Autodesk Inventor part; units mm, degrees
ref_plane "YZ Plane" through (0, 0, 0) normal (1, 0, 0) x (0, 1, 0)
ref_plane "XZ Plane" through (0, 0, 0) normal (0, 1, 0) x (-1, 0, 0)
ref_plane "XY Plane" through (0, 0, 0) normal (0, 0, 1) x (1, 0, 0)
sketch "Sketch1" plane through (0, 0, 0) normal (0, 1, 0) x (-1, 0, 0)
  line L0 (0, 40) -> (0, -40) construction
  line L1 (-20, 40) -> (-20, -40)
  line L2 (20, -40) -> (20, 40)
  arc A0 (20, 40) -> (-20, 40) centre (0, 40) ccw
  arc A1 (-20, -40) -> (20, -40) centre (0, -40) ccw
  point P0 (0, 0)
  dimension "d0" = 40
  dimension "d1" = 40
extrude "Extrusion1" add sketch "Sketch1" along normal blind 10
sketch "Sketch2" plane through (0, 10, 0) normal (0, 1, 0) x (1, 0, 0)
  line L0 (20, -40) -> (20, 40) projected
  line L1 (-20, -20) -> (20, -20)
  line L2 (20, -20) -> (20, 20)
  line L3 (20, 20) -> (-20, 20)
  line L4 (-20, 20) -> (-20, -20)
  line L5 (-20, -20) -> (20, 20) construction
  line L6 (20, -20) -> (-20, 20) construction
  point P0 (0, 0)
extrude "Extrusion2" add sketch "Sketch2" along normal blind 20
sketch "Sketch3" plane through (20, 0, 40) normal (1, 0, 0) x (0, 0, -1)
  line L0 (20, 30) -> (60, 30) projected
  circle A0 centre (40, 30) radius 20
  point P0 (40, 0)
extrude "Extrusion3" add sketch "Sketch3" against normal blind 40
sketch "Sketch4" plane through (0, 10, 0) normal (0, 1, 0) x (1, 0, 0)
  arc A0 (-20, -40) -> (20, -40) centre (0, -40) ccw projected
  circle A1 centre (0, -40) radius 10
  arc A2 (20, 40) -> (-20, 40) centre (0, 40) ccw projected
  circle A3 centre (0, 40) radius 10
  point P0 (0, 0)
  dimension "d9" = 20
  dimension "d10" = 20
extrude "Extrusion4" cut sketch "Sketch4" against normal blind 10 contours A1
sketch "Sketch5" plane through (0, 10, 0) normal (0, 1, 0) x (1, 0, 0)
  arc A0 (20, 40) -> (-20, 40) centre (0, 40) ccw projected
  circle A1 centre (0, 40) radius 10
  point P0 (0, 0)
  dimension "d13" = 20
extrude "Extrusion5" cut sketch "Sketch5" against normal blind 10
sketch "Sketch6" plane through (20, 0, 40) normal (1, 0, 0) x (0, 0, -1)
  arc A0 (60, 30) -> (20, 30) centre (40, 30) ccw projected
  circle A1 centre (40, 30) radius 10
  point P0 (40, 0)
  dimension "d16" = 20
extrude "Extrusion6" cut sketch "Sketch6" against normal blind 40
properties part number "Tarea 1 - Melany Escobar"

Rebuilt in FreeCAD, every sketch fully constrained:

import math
import FreeCAD as App
import Part
import Sketcher

V = App.Vector
Q = App.Units.Quantity

doc = App.newDocument("Part")
body = doc.addObject("PartDesign::Body", "Body")

# Sketch on XZ plane
sketch1 = body.newObject("Sketcher::SketchObject", "Sketch")
sketch1.AttachmentSupport = (doc.getObject("XZ_Plane"), [""])
sketch1.MapMode = "FlatFace"
sketch1.addGeometry([
    Part.ArcOfCircle(Part.Circle(V(0, 40, 0), V(0, 0, 1), 20), math.radians(0), math.radians(180)),
    Part.LineSegment(V(20, 40, 0), V(20, -40, 0)),
    Part.ArcOfCircle(Part.Circle(V(0, -40, 0), V(0, 0, 1), 20), math.radians(180), math.radians(360)),
    Part.LineSegment(V(-20, -40, 0), V(-20, 40, 0)),
], False)
sketch1.addConstraint([
    Sketcher.Constraint("Tangent", 0, 1, 1, 1),
    Sketcher.Constraint("Tangent", 1, 2, 2, 2),
    Sketcher.Constraint("Tangent", 2, 1, 3, 1),
    Sketcher.Constraint("Tangent", 3, 2, 0, 2),
    Sketcher.Constraint("Vertical", 1),
    Sketcher.Constraint("Vertical", 3),
    Sketcher.Constraint("Symmetric", 0, 3, 2, 3, -1, 1),
    Sketcher.Constraint("Radius", 0, Q("20 mm")),
    Sketcher.Constraint("DistanceY", -1, 1, 0, 3, Q("40 mm")),
])
pad1 = body.newObject("PartDesign::Pad", "Pad")
pad1.Profile = sketch1
pad1.Length = 10
pad1.Reversed = True

# Sketch on XZ plane
sketch2 = body.newObject("Sketcher::SketchObject", "Sketch001")
sketch2.AttachmentSupport = (doc.getObject("XZ_Plane"), [""])
sketch2.MapMode = "FlatFace"
sketch2.AttachmentOffset = App.Placement(V(0, 0, -10), App.Rotation())
sketch2.addGeometry([
    Part.LineSegment(V(-20, 20, 0), V(20, 20, 0)),
    Part.LineSegment(V(20, 20, 0), V(20, -20, 0)),
    Part.LineSegment(V(20, -20, 0), V(-20, -20, 0)),
    Part.LineSegment(V(-20, -20, 0), V(-20, 20, 0)),
], False)
sketch2.addConstraint([
    Sketcher.Constraint("Coincident", 0, 2, 1, 1),
    Sketcher.Constraint("Coincident", 1, 2, 2, 1),
    Sketcher.Constraint("Coincident", 2, 2, 3, 1),
    Sketcher.Constraint("Coincident", 3, 2, 0, 1),
    Sketcher.Constraint("Horizontal", 0),
    Sketcher.Constraint("Vertical", 1),
    Sketcher.Constraint("Horizontal", 2),
    Sketcher.Constraint("Vertical", 3),
    Sketcher.Constraint("Symmetric", 0, 2, 2, 2, -1, 1),
    Sketcher.Constraint("Equal", 2, 1),
    Sketcher.Constraint("DistanceX", 0, 1, 0, 2, Q("40 mm")),
])
pad2 = body.newObject("PartDesign::Pad", "Pad001")
pad2.Profile = sketch2
pad2.Length = 20
pad2.Reversed = True

# Sketch on YZ plane
sketch3 = body.newObject("Sketcher::SketchObject", "Sketch002")
sketch3.AttachmentSupport = (doc.getObject("YZ_Plane"), [""])
sketch3.MapMode = "FlatFace"
sketch3.AttachmentOffset = App.Placement(V(0, 0, 20), App.Rotation())
sketch3.addGeometry(Part.Circle(V(30, 0, 0), V(0, 0, 1), 20), False)
sketch3.addConstraint([
    Sketcher.Constraint("PointOnObject", 0, 3, -1),
    Sketcher.Constraint("Diameter", 0, Q("40 mm")),
    Sketcher.Constraint("DistanceX", -1, 1, 0, 3, Q("30 mm")),
])
pad3 = body.newObject("PartDesign::Pad", "Pad002")
pad3.Profile = sketch3
pad3.Length = 40
pad3.Reversed = True

# Sketch on XZ plane
sketch4 = body.newObject("Sketcher::SketchObject", "Sketch003")
sketch4.AttachmentSupport = (doc.getObject("XZ_Plane"), [""])
sketch4.MapMode = "FlatFace"
sketch4.AttachmentOffset = App.Placement(V(0, 0, -10), App.Rotation())
sketch4.addGeometry(Part.Circle(V(0, 40, 0), V(0, 0, 1), 10), False)
sketch4.addConstraint([
    Sketcher.Constraint("PointOnObject", 0, 3, -2),
    Sketcher.Constraint("Diameter", 0, Q("20 mm")),
    Sketcher.Constraint("DistanceY", -1, 1, 0, 3, Q("40 mm")),
])
pocket1 = body.newObject("PartDesign::Pocket", "Pocket")
pocket1.Profile = sketch4
pocket1.Length = 10
pocket1.Reversed = True

# Sketch on XZ plane
sketch5 = body.newObject("Sketcher::SketchObject", "Sketch004")
sketch5.AttachmentSupport = (doc.getObject("XZ_Plane"), [""])
sketch5.MapMode = "FlatFace"
sketch5.AttachmentOffset = App.Placement(V(0, 0, -10), App.Rotation())
sketch5.addGeometry(Part.Circle(V(0, -40, 0), V(0, 0, 1), 10), False)
sketch5.addConstraint([
    Sketcher.Constraint("PointOnObject", 0, 3, -2),
    Sketcher.Constraint("Diameter", 0, Q("20 mm")),
    Sketcher.Constraint("DistanceY", 0, 3, -1, 1, Q("40 mm")),
])
pocket2 = body.newObject("PartDesign::Pocket", "Pocket001")
pocket2.Profile = sketch5
pocket2.Length = 10
pocket2.Reversed = True

# Sketch on YZ plane
sketch6 = body.newObject("Sketcher::SketchObject", "Sketch005")
sketch6.AttachmentSupport = (doc.getObject("YZ_Plane"), [""])
sketch6.MapMode = "FlatFace"
sketch6.AttachmentOffset = App.Placement(V(0, 0, 20), App.Rotation())
sketch6.addGeometry(Part.Circle(V(30, 0, 0), V(0, 0, 1), 10), False)
sketch6.addConstraint([
    Sketcher.Constraint("PointOnObject", 0, 3, -1),
    Sketcher.Constraint("Diameter", 0, Q("20 mm")),
    Sketcher.Constraint("DistanceX", -1, 1, 0, 3, Q("30 mm")),
])
pocket3 = body.newObject("PartDesign::Pocket", "Pocket002")
pocket3.Profile = sketch6
pocket3.Length = 40

doc.recompute()
